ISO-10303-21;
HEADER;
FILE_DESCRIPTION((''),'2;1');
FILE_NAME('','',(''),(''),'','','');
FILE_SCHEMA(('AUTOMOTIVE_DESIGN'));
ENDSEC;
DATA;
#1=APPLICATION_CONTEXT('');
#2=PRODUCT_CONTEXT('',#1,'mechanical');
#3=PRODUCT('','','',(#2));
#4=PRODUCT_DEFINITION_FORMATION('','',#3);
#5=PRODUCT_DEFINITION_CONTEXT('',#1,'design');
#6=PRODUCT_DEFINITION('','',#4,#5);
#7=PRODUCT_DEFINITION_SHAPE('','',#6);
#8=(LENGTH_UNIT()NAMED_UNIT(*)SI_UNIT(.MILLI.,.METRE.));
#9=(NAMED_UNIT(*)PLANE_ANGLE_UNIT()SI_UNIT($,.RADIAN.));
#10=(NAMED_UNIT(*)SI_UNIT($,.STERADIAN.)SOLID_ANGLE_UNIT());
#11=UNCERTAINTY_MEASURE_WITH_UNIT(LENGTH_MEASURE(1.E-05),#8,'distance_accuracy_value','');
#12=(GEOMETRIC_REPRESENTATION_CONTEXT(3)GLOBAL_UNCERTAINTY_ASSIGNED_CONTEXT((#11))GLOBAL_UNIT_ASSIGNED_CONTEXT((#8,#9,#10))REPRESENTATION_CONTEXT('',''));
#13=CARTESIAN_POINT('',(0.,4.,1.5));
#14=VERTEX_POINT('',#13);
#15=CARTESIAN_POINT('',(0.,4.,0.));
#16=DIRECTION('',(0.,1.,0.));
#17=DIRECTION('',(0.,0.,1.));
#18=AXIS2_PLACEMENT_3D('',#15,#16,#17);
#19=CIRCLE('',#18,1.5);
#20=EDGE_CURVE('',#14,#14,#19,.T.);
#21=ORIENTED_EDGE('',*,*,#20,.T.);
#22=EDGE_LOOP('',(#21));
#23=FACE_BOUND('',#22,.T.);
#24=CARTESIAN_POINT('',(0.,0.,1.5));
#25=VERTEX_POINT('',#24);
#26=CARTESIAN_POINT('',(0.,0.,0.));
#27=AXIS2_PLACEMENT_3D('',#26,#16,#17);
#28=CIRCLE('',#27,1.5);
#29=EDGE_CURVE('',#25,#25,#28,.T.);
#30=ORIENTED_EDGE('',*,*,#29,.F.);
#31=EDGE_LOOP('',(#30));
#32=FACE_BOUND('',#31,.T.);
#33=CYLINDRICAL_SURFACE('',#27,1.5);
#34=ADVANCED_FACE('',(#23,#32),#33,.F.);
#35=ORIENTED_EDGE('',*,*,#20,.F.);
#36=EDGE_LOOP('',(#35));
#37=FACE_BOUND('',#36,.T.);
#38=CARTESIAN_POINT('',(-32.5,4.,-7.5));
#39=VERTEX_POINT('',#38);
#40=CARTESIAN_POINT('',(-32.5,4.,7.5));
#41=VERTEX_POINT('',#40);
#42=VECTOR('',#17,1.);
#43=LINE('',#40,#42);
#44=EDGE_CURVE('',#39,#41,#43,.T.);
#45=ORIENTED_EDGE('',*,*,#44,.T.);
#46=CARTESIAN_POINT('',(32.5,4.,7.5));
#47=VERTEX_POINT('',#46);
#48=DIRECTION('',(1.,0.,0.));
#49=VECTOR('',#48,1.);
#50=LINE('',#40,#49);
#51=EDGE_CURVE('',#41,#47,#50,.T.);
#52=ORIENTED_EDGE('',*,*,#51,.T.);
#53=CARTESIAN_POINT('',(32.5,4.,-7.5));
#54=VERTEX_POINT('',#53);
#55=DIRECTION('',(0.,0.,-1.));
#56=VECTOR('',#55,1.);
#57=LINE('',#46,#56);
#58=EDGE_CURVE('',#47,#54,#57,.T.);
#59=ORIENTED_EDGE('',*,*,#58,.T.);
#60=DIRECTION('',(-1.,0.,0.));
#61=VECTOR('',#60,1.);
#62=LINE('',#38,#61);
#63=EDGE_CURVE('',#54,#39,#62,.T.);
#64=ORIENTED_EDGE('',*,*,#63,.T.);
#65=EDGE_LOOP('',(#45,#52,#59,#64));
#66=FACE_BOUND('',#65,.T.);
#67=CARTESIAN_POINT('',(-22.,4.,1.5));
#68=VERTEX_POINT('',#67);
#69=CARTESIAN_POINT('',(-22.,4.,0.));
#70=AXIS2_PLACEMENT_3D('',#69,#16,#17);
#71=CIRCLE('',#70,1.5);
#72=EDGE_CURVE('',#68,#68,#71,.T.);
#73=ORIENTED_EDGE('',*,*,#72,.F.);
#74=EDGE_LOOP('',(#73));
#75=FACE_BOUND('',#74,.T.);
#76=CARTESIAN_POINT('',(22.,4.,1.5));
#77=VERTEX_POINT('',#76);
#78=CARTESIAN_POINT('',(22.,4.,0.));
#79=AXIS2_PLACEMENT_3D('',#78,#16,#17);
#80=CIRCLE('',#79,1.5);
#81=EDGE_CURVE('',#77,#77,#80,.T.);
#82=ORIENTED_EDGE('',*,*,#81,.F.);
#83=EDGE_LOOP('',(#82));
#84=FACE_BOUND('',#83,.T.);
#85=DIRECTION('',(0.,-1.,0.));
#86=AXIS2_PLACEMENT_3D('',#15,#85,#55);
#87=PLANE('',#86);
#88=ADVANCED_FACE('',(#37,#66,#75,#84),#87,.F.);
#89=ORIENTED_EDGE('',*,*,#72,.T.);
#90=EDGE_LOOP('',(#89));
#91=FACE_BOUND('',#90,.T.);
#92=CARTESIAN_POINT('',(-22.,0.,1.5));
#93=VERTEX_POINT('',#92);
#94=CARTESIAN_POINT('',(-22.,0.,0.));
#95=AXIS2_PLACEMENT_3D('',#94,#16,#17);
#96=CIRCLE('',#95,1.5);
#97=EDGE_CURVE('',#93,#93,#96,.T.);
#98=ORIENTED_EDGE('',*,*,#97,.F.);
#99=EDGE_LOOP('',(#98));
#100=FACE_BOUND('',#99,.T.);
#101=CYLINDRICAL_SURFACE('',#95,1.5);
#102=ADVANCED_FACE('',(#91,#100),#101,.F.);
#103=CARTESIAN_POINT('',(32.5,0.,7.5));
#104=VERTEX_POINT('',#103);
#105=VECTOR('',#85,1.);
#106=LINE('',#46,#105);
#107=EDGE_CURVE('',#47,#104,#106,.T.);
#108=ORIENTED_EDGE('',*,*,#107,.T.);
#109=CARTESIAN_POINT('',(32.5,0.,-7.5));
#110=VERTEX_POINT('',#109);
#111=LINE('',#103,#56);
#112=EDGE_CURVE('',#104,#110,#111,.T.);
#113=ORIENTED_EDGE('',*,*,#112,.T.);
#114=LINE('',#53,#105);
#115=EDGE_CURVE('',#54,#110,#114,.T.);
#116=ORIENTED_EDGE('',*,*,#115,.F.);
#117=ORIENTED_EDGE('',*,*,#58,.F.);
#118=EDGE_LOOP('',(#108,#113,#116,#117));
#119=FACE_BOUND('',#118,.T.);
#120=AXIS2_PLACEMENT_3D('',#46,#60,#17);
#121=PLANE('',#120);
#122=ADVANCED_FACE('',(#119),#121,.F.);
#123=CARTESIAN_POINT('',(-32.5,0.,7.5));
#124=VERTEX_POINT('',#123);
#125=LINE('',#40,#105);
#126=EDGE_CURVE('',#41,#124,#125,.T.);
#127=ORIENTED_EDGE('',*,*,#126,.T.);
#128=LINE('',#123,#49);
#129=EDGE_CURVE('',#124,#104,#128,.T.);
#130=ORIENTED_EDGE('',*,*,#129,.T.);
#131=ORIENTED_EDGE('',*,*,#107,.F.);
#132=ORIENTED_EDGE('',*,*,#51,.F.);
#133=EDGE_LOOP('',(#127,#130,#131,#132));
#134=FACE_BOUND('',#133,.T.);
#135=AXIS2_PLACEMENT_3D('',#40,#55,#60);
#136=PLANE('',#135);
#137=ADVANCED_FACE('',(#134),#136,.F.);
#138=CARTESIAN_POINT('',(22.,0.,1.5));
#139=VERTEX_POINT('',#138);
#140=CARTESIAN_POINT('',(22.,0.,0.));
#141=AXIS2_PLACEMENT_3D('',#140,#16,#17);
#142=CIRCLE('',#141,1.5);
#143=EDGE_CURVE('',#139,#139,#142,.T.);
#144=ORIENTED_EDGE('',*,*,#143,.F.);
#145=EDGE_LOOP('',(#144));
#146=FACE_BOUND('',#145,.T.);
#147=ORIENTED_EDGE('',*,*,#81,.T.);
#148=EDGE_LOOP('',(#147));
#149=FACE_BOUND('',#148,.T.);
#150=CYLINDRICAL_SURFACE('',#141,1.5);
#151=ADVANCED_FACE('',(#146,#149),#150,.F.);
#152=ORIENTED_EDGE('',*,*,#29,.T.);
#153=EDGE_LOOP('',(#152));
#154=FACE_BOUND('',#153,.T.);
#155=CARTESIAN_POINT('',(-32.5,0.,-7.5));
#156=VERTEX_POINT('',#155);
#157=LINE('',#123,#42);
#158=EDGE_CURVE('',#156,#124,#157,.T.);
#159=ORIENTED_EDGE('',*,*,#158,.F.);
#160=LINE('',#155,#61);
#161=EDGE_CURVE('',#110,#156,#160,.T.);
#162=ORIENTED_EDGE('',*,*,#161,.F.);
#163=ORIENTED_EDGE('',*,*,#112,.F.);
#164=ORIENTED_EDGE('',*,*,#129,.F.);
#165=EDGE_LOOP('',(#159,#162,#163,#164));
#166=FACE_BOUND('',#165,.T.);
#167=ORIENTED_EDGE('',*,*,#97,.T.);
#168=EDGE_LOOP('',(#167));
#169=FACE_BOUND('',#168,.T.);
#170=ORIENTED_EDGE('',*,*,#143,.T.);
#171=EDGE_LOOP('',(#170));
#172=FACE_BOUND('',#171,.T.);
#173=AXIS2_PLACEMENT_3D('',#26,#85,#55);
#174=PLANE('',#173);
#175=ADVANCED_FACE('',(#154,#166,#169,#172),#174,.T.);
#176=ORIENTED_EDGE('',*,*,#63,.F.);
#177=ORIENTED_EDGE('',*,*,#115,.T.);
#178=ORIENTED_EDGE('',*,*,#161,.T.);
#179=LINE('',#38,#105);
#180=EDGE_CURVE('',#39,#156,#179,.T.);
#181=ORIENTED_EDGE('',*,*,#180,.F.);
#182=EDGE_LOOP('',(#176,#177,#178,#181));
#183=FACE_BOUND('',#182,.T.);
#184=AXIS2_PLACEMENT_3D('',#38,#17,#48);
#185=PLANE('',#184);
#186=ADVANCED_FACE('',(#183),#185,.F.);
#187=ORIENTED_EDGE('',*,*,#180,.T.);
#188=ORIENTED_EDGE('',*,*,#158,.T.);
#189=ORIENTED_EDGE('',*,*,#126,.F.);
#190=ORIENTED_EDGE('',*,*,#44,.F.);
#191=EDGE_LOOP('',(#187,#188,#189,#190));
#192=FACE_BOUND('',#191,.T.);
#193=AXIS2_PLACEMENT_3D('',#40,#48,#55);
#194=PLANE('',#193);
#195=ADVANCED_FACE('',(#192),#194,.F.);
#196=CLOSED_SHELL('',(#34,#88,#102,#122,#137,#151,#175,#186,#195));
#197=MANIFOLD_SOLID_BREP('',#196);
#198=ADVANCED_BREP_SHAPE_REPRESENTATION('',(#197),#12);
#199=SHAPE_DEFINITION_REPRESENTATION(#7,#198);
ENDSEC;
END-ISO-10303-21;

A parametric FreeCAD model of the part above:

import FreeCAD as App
import Part
import Sketcher
Q = App.Units.Quantity

doc = App.newDocument("Part")
body = doc.addObject("PartDesign::Body", "Body")

sketch1 = doc.addObject("Sketcher::SketchObject", "Sketch")
body.addObject(sketch1)
sketch1.AttachmentSupport = (doc.XZ_Plane, [""])
sketch1.MapMode = "FlatFace"
sketch1.addGeometry(Part.LineSegment(App.Vector(-32.5, -7.5, 0), App.Vector(-32.5, 7.5, 0)), False)
sketch1.addGeometry(Part.LineSegment(App.Vector(-32.5, 7.5, 0), App.Vector(32.5, 7.5, 0)), False)
sketch1.addGeometry(Part.LineSegment(App.Vector(32.5, 7.5, 0), App.Vector(32.5, -7.5, 0)), False)
sketch1.addGeometry(Part.LineSegment(App.Vector(32.5, -7.5, 0), App.Vector(-32.5, -7.5, 0)), False)
sketch1.addConstraint(Sketcher.Constraint("Coincident", 0, 2, 1, 1))
sketch1.addConstraint(Sketcher.Constraint("Coincident", 1, 2, 2, 1))
sketch1.addConstraint(Sketcher.Constraint("Coincident", 2, 2, 3, 1))
sketch1.addConstraint(Sketcher.Constraint("Coincident", 3, 2, 0, 1))
sketch1.addConstraint(Sketcher.Constraint("Vertical", 0))
sketch1.addConstraint(Sketcher.Constraint("Horizontal", 1))
sketch1.addConstraint(Sketcher.Constraint("Vertical", 2))
sketch1.addConstraint(Sketcher.Constraint("Horizontal", 3))
sketch1.addConstraint(Sketcher.Constraint("Symmetric", 0, 2, 2, 2, -1, 1))
sketch1.addConstraint(Sketcher.Constraint("DistanceX", 1, 1, 1, 2, Q("65 mm")))
sketch1.addConstraint(Sketcher.Constraint("DistanceY", 0, 1, 0, 2, Q("15 mm")))
pad1 = doc.addObject("PartDesign::Pad", "Pad")
body.addObject(pad1)
pad1.Profile = sketch1
pad1.Length = 4
pad1.Reversed = True

sketch2 = doc.addObject("Sketcher::SketchObject", "Sketch001")
body.addObject(sketch2)
sketch2.AttachmentSupport = (doc.XZ_Plane, [""])
sketch2.MapMode = "FlatFace"
sketch2.AttachmentOffset = App.Placement(App.Vector(0, 0, -4), App.Rotation())
sketch2.addGeometry(Part.Circle(App.Vector(-22, 0, 0), App.Vector(0, 0, 1), 1.5), False)
sketch2.addGeometry(Part.Circle(App.Vector(0, 0, 0), App.Vector(0, 0, 1), 1.5), False)
sketch2.addGeometry(Part.Circle(App.Vector(22, 0, 0), App.Vector(0, 0, 1), 1.5), False)
sketch2.addConstraint(Sketcher.Constraint("Coincident", 1, 3, -1, 1))
sketch2.addConstraint(Sketcher.Constraint("Equal", 0, 1))
sketch2.addConstraint(Sketcher.Constraint("Equal", 1, 2))
sketch2.addConstraint(Sketcher.Constraint("Symmetric", 0, 3, 2, 3, -1, 1))
sketch2.addConstraint(Sketcher.Constraint("PointOnObject", 0, 3, -1))
sketch2.addConstraint(Sketcher.Constraint("Diameter", 0, Q("3 mm")))
sketch2.addConstraint(Sketcher.Constraint("DistanceX", 0, 3, -1, 1, Q("22 mm")))
pocket1 = doc.addObject("PartDesign::Pocket", "Pocket")
body.addObject(pocket1)
pocket1.Profile = sketch2
pocket1.Type = "ThroughAll"
pocket1.Reversed = True

doc.recompute()
